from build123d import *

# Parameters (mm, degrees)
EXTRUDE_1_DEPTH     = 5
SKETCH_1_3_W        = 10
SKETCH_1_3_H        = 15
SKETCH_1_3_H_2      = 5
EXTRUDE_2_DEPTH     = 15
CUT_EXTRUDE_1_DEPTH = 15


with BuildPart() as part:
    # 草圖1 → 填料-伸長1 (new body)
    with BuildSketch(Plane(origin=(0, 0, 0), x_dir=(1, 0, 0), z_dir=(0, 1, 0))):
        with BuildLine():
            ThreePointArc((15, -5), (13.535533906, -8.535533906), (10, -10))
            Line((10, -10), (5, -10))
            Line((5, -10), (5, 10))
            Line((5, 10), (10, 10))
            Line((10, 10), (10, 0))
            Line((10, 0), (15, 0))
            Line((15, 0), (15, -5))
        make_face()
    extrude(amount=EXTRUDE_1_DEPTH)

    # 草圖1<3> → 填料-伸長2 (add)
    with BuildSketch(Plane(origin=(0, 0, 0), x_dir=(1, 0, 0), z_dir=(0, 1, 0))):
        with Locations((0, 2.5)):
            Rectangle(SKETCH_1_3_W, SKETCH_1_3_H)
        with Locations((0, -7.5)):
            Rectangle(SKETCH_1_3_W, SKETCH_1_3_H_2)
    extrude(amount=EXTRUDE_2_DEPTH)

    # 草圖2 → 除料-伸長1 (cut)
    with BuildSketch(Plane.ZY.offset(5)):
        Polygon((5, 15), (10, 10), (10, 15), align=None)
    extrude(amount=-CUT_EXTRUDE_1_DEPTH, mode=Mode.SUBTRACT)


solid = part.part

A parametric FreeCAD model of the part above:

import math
import FreeCAD as App
import Part
import Sketcher

V = App.Vector


def add_polygon(sketch, points):
    """Adds a closed chain of lines whose ends are joined by coincident constraints."""
    first, n = sketch.GeometryCount, len(points)
    for a, b in zip(points, points[1:] + points[:1]):
        sketch.addGeometry(Part.LineSegment(App.Vector(*a, 0), App.Vector(*b, 0)), False)
    for i in range(n):
        sketch.addConstraint(Sketcher.Constraint("Coincident", first + i, 2, first + (i + 1) % n, 1))

doc = App.newDocument("Part")
body = doc.addObject("PartDesign::Body", "Body")

sketch1 = body.newObject("Sketcher::SketchObject", "Sketch")
sketch1.AttachmentSupport = (doc.getObject("XZ_Plane"), [""])
sketch1.MapMode = "FlatFace"
sketch1.addGeometry([
    Part.ArcOfCircle(Part.Circle(V(10, 5, 0), V(0, 0, 1), 5), math.radians(0), math.radians(90)),
    Part.LineSegment(V(15, 5, 0), V(15, 0, 0)),
    Part.LineSegment(V(15, 0, 0), V(10, 0, 0)),
    Part.LineSegment(V(10, 0, 0), V(10, -10, 0)),
    Part.LineSegment(V(10, -10, 0), V(5, -10, 0)),
    Part.LineSegment(V(5, -10, 0), V(5, 10, 0)),
    Part.LineSegment(V(5, 10, 0), V(10, 10, 0)),
], False)
sketch1.addConstraint([
    Sketcher.Constraint("Tangent", 0, 1, 1, 1),
    Sketcher.Constraint("Coincident", 1, 2, 2, 1),
    Sketcher.Constraint("Coincident", 2, 2, 3, 1),
    Sketcher.Constraint("Coincident", 3, 2, 4, 1),
    Sketcher.Constraint("Coincident", 4, 2, 5, 1),
    Sketcher.Constraint("Coincident", 5, 2, 6, 1),
    Sketcher.Constraint("Tangent", 6, 2, 0, 2),
    Sketcher.Constraint("Vertical", 1),
    Sketcher.Constraint("Horizontal", 2),
    Sketcher.Constraint("Vertical", 3),
    Sketcher.Constraint("Horizontal", 4),
    Sketcher.Constraint("Vertical", 5),
    Sketcher.Constraint("Horizontal", 6),
    Sketcher.Constraint("Symmetric", 3, 2, 6, 2, -1),
    Sketcher.Constraint("PointOnObject", 1, 2, -1),
    Sketcher.Constraint("Equal", 2, 4),
    Sketcher.Constraint("Equal", 6, 1),
    Sketcher.Constraint("Radius", 0, 5.0),
    Sketcher.Constraint("DistanceX", -1, 1, 0, 3, 10.0),
])
pad1 = body.newObject("PartDesign::Pad", "Pad")
pad1.Profile = sketch1
pad1.Length = 5
pad1.Reversed = True

sketch2 = body.newObject("Sketcher::SketchObject", "Sketch001")
sketch2.AttachmentSupport = (doc.getObject("XZ_Plane"), [""])
sketch2.MapMode = "FlatFace"
add_polygon(sketch2, [(-5, -10), (-5, 10), (5, 10), (5, -10)])
sketch2.addConstraint([
    Sketcher.Constraint("Vertical", 0),
    Sketcher.Constraint("Horizontal", 1),
    Sketcher.Constraint("Vertical", 2),
    Sketcher.Constraint("Horizontal", 3),
    Sketcher.Constraint("Symmetric", 0, 2, 2, 2, -1, 1),
    Sketcher.Constraint("DistanceX", 1, 1, 1, 2, 10.0),
    Sketcher.Constraint("DistanceY", 0, 1, 0, 2, 20.0),
])
pad2 = body.newObject("PartDesign::Pad", "Pad001")
pad2.Profile = sketch2
pad2.Length = 15
pad2.Reversed = True

sketch3 = body.newObject("Sketcher::SketchObject", "Sketch002")
sketch3.AttachmentSupport = (doc.getObject("YZ_Plane"), [""])
sketch3.MapMode = "FlatFace"
sketch3.AttachmentOffset = App.Placement(V(0, 0, -5), App.Rotation())
add_polygon(sketch3, [(15, 5), (10, 10), (15, 10)])
sketch3.addConstraint([
    Sketcher.Constraint("Horizontal", 1),
    Sketcher.Constraint("Vertical", 2),
    Sketcher.Constraint("Equal", 1, 2),
    Sketcher.Constraint("DistanceX", 1, 1, 1, 2, 5.0),
    Sketcher.Constraint("DistanceX", -1, 1, 0, 2, 10.0),
    Sketcher.Constraint("DistanceY", -1, 1, 0, 2, 10.0),
])
pocket1 = body.newObject("PartDesign::Pocket", "Pocket")
pocket1.Profile = sketch3
pocket1.Length = 15
pocket1.Reversed = True

doc.recompute()
